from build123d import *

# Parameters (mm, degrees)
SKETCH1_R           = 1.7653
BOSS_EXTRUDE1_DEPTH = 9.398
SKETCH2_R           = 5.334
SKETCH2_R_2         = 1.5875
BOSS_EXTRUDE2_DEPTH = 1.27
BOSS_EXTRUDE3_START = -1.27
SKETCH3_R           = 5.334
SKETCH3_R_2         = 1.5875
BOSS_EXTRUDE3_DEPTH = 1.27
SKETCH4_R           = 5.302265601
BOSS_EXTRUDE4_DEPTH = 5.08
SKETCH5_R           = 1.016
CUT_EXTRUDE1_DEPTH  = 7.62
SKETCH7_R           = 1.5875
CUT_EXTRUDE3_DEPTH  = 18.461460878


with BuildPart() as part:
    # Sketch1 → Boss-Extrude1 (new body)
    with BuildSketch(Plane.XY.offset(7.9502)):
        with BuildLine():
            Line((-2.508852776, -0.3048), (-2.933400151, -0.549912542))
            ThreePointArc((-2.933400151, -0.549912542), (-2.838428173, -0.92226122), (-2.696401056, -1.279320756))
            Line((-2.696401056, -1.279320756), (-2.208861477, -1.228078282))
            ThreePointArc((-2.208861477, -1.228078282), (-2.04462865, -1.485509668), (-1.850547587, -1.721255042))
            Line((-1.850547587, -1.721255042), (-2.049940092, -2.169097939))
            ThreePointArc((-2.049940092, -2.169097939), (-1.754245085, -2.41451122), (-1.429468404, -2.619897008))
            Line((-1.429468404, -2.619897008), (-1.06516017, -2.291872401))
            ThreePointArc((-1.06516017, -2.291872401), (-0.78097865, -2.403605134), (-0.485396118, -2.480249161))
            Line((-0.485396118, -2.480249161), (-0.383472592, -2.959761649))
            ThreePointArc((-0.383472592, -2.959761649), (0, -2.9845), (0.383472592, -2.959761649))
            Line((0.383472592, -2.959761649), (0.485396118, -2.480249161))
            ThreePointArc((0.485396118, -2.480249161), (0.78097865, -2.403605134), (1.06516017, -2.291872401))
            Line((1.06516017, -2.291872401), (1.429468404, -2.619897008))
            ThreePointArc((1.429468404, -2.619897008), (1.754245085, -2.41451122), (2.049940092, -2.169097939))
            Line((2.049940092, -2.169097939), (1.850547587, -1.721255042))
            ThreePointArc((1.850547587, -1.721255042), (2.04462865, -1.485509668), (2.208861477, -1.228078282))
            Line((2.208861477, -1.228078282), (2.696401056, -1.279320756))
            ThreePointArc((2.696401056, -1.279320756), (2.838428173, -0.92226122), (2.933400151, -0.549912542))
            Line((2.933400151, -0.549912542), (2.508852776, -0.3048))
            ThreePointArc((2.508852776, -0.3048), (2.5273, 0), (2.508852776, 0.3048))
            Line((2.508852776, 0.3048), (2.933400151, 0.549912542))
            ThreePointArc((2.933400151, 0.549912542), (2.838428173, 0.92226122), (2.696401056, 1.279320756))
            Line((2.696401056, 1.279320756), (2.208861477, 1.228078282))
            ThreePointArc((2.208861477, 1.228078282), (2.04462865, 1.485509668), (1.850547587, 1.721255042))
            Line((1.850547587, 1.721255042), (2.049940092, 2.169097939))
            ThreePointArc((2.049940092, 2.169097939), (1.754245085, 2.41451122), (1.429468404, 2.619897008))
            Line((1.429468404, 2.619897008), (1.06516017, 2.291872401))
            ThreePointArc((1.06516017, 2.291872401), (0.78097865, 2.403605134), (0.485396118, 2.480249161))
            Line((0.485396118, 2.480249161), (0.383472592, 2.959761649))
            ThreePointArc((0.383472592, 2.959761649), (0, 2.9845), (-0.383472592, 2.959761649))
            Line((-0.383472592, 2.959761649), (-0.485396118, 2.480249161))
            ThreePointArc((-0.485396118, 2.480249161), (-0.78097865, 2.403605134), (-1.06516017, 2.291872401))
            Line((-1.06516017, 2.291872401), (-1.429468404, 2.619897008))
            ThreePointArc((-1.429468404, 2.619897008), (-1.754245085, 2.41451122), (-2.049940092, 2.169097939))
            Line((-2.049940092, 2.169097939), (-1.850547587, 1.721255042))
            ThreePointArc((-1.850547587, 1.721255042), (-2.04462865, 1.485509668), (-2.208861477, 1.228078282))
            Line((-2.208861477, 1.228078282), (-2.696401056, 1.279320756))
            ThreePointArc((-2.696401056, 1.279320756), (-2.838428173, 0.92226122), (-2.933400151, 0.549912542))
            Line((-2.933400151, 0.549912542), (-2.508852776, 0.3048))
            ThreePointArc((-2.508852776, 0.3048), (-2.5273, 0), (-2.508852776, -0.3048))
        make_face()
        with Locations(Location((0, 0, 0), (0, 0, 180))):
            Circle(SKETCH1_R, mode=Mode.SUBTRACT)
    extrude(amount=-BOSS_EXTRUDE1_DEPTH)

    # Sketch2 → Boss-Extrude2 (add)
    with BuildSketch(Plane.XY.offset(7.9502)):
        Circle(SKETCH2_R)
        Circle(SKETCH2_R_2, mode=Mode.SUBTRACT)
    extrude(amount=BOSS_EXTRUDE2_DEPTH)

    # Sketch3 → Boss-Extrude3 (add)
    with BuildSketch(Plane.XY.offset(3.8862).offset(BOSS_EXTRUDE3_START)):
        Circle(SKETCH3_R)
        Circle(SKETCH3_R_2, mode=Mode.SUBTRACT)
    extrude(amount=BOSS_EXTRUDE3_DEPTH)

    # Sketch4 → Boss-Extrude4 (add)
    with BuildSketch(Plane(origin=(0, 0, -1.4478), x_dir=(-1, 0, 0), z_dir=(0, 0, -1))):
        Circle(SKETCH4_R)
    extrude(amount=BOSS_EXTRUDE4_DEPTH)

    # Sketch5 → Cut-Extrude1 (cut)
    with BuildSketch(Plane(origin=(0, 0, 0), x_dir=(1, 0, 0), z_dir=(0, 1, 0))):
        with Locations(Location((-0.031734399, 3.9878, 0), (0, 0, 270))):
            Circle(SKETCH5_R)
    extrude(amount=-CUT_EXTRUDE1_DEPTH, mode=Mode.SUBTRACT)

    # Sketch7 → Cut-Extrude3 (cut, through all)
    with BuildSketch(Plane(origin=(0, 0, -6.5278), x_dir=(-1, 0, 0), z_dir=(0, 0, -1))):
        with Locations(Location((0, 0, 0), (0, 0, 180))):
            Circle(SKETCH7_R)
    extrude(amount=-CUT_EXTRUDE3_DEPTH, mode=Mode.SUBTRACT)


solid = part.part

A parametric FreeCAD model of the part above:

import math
import FreeCAD as App
import Part
import Sketcher
from FreeCAD import Vector
Q = App.Units.Quantity

doc = App.newDocument("Part")
body = doc.addObject("PartDesign::Body", "Body")

# Sketch on XY plane
sketch1 = body.newObject("Sketcher::SketchObject", "Sketch")
sketch1.AttachmentSupport = (doc.getObject("XY_Plane"), [""])
sketch1.MapMode = "FlatFace"
sketch1.AttachmentOffset = App.Placement(Vector(0, 0, 0.313 * 25.4), App.Rotation())
sketch1.addGeometry([
    Part.LineSegment(Vector(-2.508853, -0.3048, 0), Vector(-2.9334, -0.549913, 0)),  # 0
    Part.ArcOfCircle(Part.Circle(Vector(0, 0, 0), Vector(0, 0, 1), 2.9845), math.radians(-169.382231), math.radians(-154.617769)),  # 1
    Part.LineSegment(Vector(-2.696401, -1.279321, 0), Vector(-2.208861, -1.228078, 0)),  # 2
    Part.ArcOfCircle(Part.Circle(Vector(0, 0, 0), Vector(0, 0, 1), 2.5273), math.radians(-150.926905), math.radians(-137.073095)),  # 3
    Part.LineSegment(Vector(-1.850548, -1.721255, 0), Vector(-2.04994, -2.169098, 0)),  # 4
    Part.ArcOfCircle(Part.Circle(Vector(0, 0, 0), Vector(0, 0, 1), 2.9845), math.radians(-133.382231), math.radians(-118.617769)),  # 5
    Part.LineSegment(Vector(-1.429468, -2.619897, 0), Vector(-1.06516, -2.291872, 0)),  # 6
    Part.ArcOfCircle(Part.Circle(Vector(0, 0, 0), Vector(0, 0, 1), 2.5273), math.radians(-114.926906), math.radians(-101.073094)),  # 7
    Part.LineSegment(Vector(-0.485396, -2.480249, 0), Vector(-0.383473, -2.959762, 0)),  # 8
    Part.ArcOfCircle(Part.Circle(Vector(0, 0, 0), Vector(0, 0, 1), 2.9845), math.radians(-97.382231), math.radians(-82.617769)),  # 9
    Part.LineSegment(Vector(0.383473, -2.959762, 0), Vector(0.485396, -2.480249, 0)),  # 10
    Part.ArcOfCircle(Part.Circle(Vector(0, 0, 0), Vector(0, 0, 1), 2.5273), math.radians(-78.926906), math.radians(-65.073094)),  # 11
    Part.LineSegment(Vector(1.06516, -2.291872, 0), Vector(1.429468, -2.619897, 0)),  # 12
    Part.ArcOfCircle(Part.Circle(Vector(0, 0, 0), Vector(0, 0, 1), 2.9845), math.radians(-61.382231), math.radians(-46.617769)),  # 13
    Part.LineSegment(Vector(2.04994, -2.169098, 0), Vector(1.850548, -1.721255, 0)),  # 14
    Part.ArcOfCircle(Part.Circle(Vector(0, 0, 0), Vector(0, 0, 1), 2.5273), math.radians(-42.926905), math.radians(-29.073095)),  # 15
    Part.LineSegment(Vector(2.208861, -1.228078, 0), Vector(2.696401, -1.279321, 0)),  # 16
    Part.ArcOfCircle(Part.Circle(Vector(0, 0, 0), Vector(0, 0, 1), 2.9845), math.radians(-25.382231), math.radians(-10.617769)),  # 17
    Part.LineSegment(Vector(2.9334, -0.549913, 0), Vector(2.508853, -0.3048, 0)),  # 18
    Part.ArcOfCircle(Part.Circle(Vector(0, 0, 0), Vector(0, 0, 1), 2.5273), math.radians(-6.926905), math.radians(6.926905)),  # 19
    Part.LineSegment(Vector(2.508853, 0.3048, 0), Vector(2.9334, 0.549913, 0)),  # 20
    Part.ArcOfCircle(Part.Circle(Vector(0, 0, 0), Vector(0, 0, 1), 2.9845), math.radians(10.617769), math.radians(25.382231)),  # 21
    Part.LineSegment(Vector(2.696401, 1.279321, 0), Vector(2.208861, 1.228078, 0)),  # 22
    Part.ArcOfCircle(Part.Circle(Vector(0, 0, 0), Vector(0, 0, 1), 2.5273), math.radians(29.073095), math.radians(42.926905)),  # 23
    Part.LineSegment(Vector(1.850548, 1.721255, 0), Vector(2.04994, 2.169098, 0)),  # 24
    Part.ArcOfCircle(Part.Circle(Vector(0, 0, 0), Vector(0, 0, 1), 2.9845), math.radians(46.617769), math.radians(61.382231)),  # 25
    Part.LineSegment(Vector(1.429468, 2.619897, 0), Vector(1.06516, 2.291872, 0)),  # 26
    Part.ArcOfCircle(Part.Circle(Vector(0, 0, 0), Vector(0, 0, 1), 2.5273), math.radians(65.073094), math.radians(78.926906)),  # 27
    Part.LineSegment(Vector(0.485396, 2.480249, 0), Vector(0.383473, 2.959762, 0)),  # 28
    Part.ArcOfCircle(Part.Circle(Vector(0, 0, 0), Vector(0, 0, 1), 2.9845), math.radians(82.617769), math.radians(97.382231)),  # 29
    Part.LineSegment(Vector(-0.383473, 2.959762, 0), Vector(-0.485396, 2.480249, 0)),  # 30
    Part.ArcOfCircle(Part.Circle(Vector(0, 0, 0), Vector(0, 0, 1), 2.5273), math.radians(101.073094), math.radians(114.926906)),  # 31
    Part.LineSegment(Vector(-1.06516, 2.291872, 0), Vector(-1.429468, 2.619897, 0)),  # 32
    Part.ArcOfCircle(Part.Circle(Vector(0, 0, 0), Vector(0, 0, 1), 2.9845), math.radians(118.617769), math.radians(133.382231)),  # 33
    Part.LineSegment(Vector(-2.04994, 2.169098, 0), Vector(-1.850548, 1.721255, 0)),  # 34
    Part.ArcOfCircle(Part.Circle(Vector(0, 0, 0), Vector(0, 0, 1), 2.5273), math.radians(137.073095), math.radians(150.926905)),  # 35
    Part.LineSegment(Vector(-2.208861, 1.228078, 0), Vector(-2.696401, 1.279321, 0)),  # 36
    Part.ArcOfCircle(Part.Circle(Vector(0, 0, 0), Vector(0, 0, 1), 2.9845), math.radians(154.617769), math.radians(169.382231)),  # 37
    Part.LineSegment(Vector(-2.9334, 0.549913, 0), Vector(-2.508853, 0.3048, 0)),  # 38
    Part.ArcOfCircle(Part.Circle(Vector(0, 0, 0), Vector(0, 0, 1), 2.5273), math.radians(173.073095), math.radians(186.926905)),  # 39
    Part.Circle(Vector(0, 0, 0), Vector(0, 0, 1), 1.7653),  # 40
], False)
sketch1.addConstraint([
    Sketcher.Constraint("Coincident", 0, 2, 1, 1),
    Sketcher.Constraint("Coincident", 1, 2, 2, 1),
    Sketcher.Constraint("Coincident", 2, 2, 3, 1),
    Sketcher.Constraint("Coincident", 3, 2, 4, 1),
    Sketcher.Constraint("Coincident", 4, 2, 5, 1),
    Sketcher.Constraint("Coincident", 5, 2, 6, 1),
    Sketcher.Constraint("Coincident", 6, 2, 7, 1),
    Sketcher.Constraint("Coincident", 7, 2, 8, 1),
    Sketcher.Constraint("Coincident", 8, 2, 9, 1),
    Sketcher.Constraint("Coincident", 9, 2, 10, 1),
    Sketcher.Constraint("Coincident", 10, 2, 11, 1),
    Sketcher.Constraint("Coincident", 11, 2, 12, 1),
    Sketcher.Constraint("Coincident", 12, 2, 13, 1),
    Sketcher.Constraint("Coincident", 13, 2, 14, 1),
    Sketcher.Constraint("Coincident", 14, 2, 15, 1),
    Sketcher.Constraint("Coincident", 15, 2, 16, 1),
    Sketcher.Constraint("Coincident", 16, 2, 17, 1),
    Sketcher.Constraint("Coincident", 17, 2, 18, 1),
    Sketcher.Constraint("Coincident", 18, 2, 19, 1),
    Sketcher.Constraint("Coincident", 19, 2, 20, 1),
    Sketcher.Constraint("Coincident", 20, 2, 21, 1),
    Sketcher.Constraint("Coincident", 21, 2, 22, 1),
    Sketcher.Constraint("Coincident", 22, 2, 23, 1),
    Sketcher.Constraint("Coincident", 23, 2, 24, 1),
    Sketcher.Constraint("Coincident", 24, 2, 25, 1),
    Sketcher.Constraint("Coincident", 25, 2, 26, 1),
    Sketcher.Constraint("Coincident", 26, 2, 27, 1),
    Sketcher.Constraint("Coincident", 27, 2, 28, 1),
    Sketcher.Constraint("Coincident", 28, 2, 29, 1),
    Sketcher.Constraint("Coincident", 29, 2, 30, 1),
    Sketcher.Constraint("Coincident", 30, 2, 31, 1),
    Sketcher.Constraint("Coincident", 31, 2, 32, 1),
    Sketcher.Constraint("Coincident", 32, 2, 33, 1),
    Sketcher.Constraint("Coincident", 33, 2, 34, 1),
    Sketcher.Constraint("Coincident", 34, 2, 35, 1),
    Sketcher.Constraint("Coincident", 35, 2, 36, 1),
    Sketcher.Constraint("Coincident", 36, 2, 37, 1),
    Sketcher.Constraint("Coincident", 37, 2, 38, 1),
    Sketcher.Constraint("Coincident", 38, 2, 39, 1),
    Sketcher.Constraint("Coincident", 39, 2, 0, 1),
    Sketcher.Constraint("Coincident", 1, 3, -1, 1),
    Sketcher.Constraint("Coincident", 3, 3, -1, 1),
    Sketcher.Constraint("Coincident", 5, 3, -1, 1),
    Sketcher.Constraint("Coincident", 7, 3, -1, 1),
    Sketcher.Constraint("Coincident", 9, 3, -1, 1),
    Sketcher.Constraint("Coincident", 11, 3, -1, 1),
    Sketcher.Constraint("Coincident", 13, 3, -1, 1),
    Sketcher.Constraint("Coincident", 15, 3, -1, 1),
    Sketcher.Constraint("Coincident", 17, 3, -1, 1),
    Sketcher.Constraint("Coincident", 19, 3, -1, 1),
    Sketcher.Constraint("Coincident", 21, 3, -1, 1),
    Sketcher.Constraint("Coincident", 23, 3, -1, 1),
    Sketcher.Constraint("Coincident", 25, 3, -1, 1),
    Sketcher.Constraint("Coincident", 27, 3, -1, 1),
    Sketcher.Constraint("Coincident", 29, 3, -1, 1),
    Sketcher.Constraint("Coincident", 31, 3, -1, 1),
    Sketcher.Constraint("Coincident", 33, 3, -1, 1),
    Sketcher.Constraint("Coincident", 35, 3, -1, 1),
    Sketcher.Constraint("Coincident", 37, 3, -1, 1),
    Sketcher.Constraint("Coincident", 39, 3, -1, 1),
    Sketcher.Constraint("Coincident", 40, 3, -1, 1),
    Sketcher.Constraint("Equal", 1, 5),
    Sketcher.Constraint("Equal", 3, 7),
    Sketcher.Constraint("Equal", 5, 9),
    Sketcher.Constraint("Equal", 7, 11),
    Sketcher.Constraint("Equal", 9, 13),
    Sketcher.Constraint("Equal", 11, 15),
    Sketcher.Constraint("Equal", 13, 17),
    Sketcher.Constraint("Equal", 15, 19),
    Sketcher.Constraint("Equal", 17, 21),
    Sketcher.Constraint("Equal", 19, 23),
    Sketcher.Constraint("Equal", 21, 25),
    Sketcher.Constraint("Equal", 23, 27),
    Sketcher.Constraint("Equal", 25, 29),
    Sketcher.Constraint("Equal", 27, 31),
    Sketcher.Constraint("Equal", 29, 33),
    Sketcher.Constraint("Equal", 31, 35),
    Sketcher.Constraint("Equal", 33, 37),
    Sketcher.Constraint("Equal", 35, 39),
    Sketcher.Constraint("Parallel", 0, 20),
    Sketcher.Constraint("Parallel", 2, 22),
    Sketcher.Constraint("Parallel", 4, 24),
    Sketcher.Constraint("Parallel", 6, 26),
    Sketcher.Constraint("Parallel", 8, 28),
    Sketcher.Constraint("Parallel", 10, 30),
    Sketcher.Constraint("Parallel", 12, 32),
    Sketcher.Constraint("Parallel", 14, 34),
    Sketcher.Constraint("Parallel", 16, 36),
    Sketcher.Constraint("Parallel", 18, 38),
    Sketcher.Constraint("Horizontal", 8, 2, 9, 2),
    Sketcher.Constraint("Horizontal", 7, 2, 10, 2),
    Sketcher.Constraint("Horizontal", 6, 2, 11, 2),
    Sketcher.Constraint("Horizontal", 5, 2, 12, 2),
    Sketcher.Constraint("Horizontal", 4, 2, 13, 2),
    Sketcher.Constraint("Horizontal", 3, 2, 14, 2),
    Sketcher.Constraint("Horizontal", 2, 2, 15, 2),
    Sketcher.Constraint("Horizontal", 1, 2, 16, 2),
    Sketcher.Constraint("Horizontal", 0, 2, 17, 2),
    Sketcher.Constraint("Horizontal", 28, 2, 29, 2),
    Sketcher.Constraint("Horizontal", 26, 2, 31, 2),
    Sketcher.Constraint("Horizontal", 24, 2, 33, 2),
    Sketcher.Constraint("Horizontal", 22, 2, 35, 2),
    Sketcher.Constraint("Horizontal", 20, 2, 37, 2),
    Sketcher.Constraint("Horizontal", 19, 2, 38, 2),
    Sketcher.Constraint("Vertical", 18, 2, 19, 2),
    Sketcher.Constraint("Vertical", 16, 2, 21, 2),
    Sketcher.Constraint("Vertical", 14, 2, 23, 2),
    Sketcher.Constraint("Vertical", 12, 2, 25, 2),
    Sketcher.Constraint("Vertical", 10, 2, 27, 2),
    Sketcher.Constraint("Equal", 0, 2),
    Sketcher.Constraint("Equal", 2, 4),
    Sketcher.Constraint("Equal", 4, 6),
    Sketcher.Constraint("Equal", 6, 8),
    Sketcher.Constraint("Diameter", 40, Q("0.139 in")),
    Sketcher.Constraint("Angle", 0, Q("-150 deg")),
    Sketcher.Constraint("Angle", 2, Q("6 deg")),
    Sketcher.Constraint("Angle", 4, Q("-114 deg")),
    Sketcher.Constraint("Angle", 6, Q("42 deg")),
    Sketcher.Constraint("Angle", 8, Q("-78 deg")),
    Sketcher.Constraint("Radius", 1, Q("0.1175 in")),
    Sketcher.Constraint("Radius", 3, Q("0.0995 in")),
    Sketcher.Constraint("DistanceY", 18, 2, -1, 1, Q("0.012 in")),
])
pad1 = body.newObject("PartDesign::Pad", "Pad")
pad1.Profile = sketch1
pad1.Length = Q("0.37 in")
pad1.Reversed = True

# Sketch on XY plane
sketch2 = body.newObject("Sketcher::SketchObject", "Sketch001")
sketch2.AttachmentSupport = (doc.getObject("XY_Plane"), [""])
sketch2.MapMode = "FlatFace"
sketch2.AttachmentOffset = App.Placement(Vector(0, 0, 0.313 * 25.4), App.Rotation())
sketch2.addGeometry([
    Part.Circle(Vector(0, 0, 0), Vector(0, 0, 1), 5.334),
    Part.Circle(Vector(0, 0, 0), Vector(0, 0, 1), 1.5875),
], False)
sketch2.addConstraint([
    Sketcher.Constraint("Coincident", 0, 3, -1, 1),
    Sketcher.Constraint("Coincident", 1, 3, -1, 1),
    Sketcher.Constraint("Diameter", 0, Q("0.42 in")),
    Sketcher.Constraint("Diameter", 1, Q("0.125 in")),
])
pad2 = body.newObject("PartDesign::Pad", "Pad001")
pad2.Profile = sketch2
pad2.Length = Q("0.05 in")

# Sketch on XY plane
sketch3 = body.newObject("Sketcher::SketchObject", "Sketch002")
sketch3.AttachmentSupport = (doc.getObject("XY_Plane"), [""])
sketch3.MapMode = "FlatFace"
sketch3.AttachmentOffset = App.Placement(Vector(0, 0, 0.103 * 25.4), App.Rotation())
sketch3.addGeometry([
    Part.Circle(Vector(0, 0, 0), Vector(0, 0, 1), 5.334),
    Part.Circle(Vector(0, 0, 0), Vector(0, 0, 1), 1.5875),
], False)
sketch3.addConstraint([
    Sketcher.Constraint("Coincident", 0, 3, -1, 1),
    Sketcher.Constraint("Coincident", 1, 3, -1, 1),
    Sketcher.Constraint("Diameter", 0, Q("0.42 in")),
    Sketcher.Constraint("Diameter", 1, Q("0.125 in")),
])
pad3 = body.newObject("PartDesign::Pad", "Pad002")
pad3.Profile = sketch3
pad3.Length = Q("0.05 in")

# Sketch on XY plane
sketch4 = body.newObject("Sketcher::SketchObject", "Sketch003")
sketch4.AttachmentSupport = (doc.getObject("XY_Plane"), [""])
sketch4.MapMode = "FlatFace"
sketch4.AttachmentOffset = App.Placement(Vector(0, 0, -0.057 * 25.4), App.Rotation())
sketch4.addGeometry(Part.Circle(Vector(0, 0, 0), Vector(0, 0, 1), 5.302266), False)
sketch4.addConstraint([
    Sketcher.Constraint("Coincident", 0, 3, -1, 1),
    Sketcher.Constraint("Diameter", 0, 10.604531),
])
pad4 = body.newObject("PartDesign::Pad", "Pad003")
pad4.Profile = sketch4
pad4.Length = Q("0.2 in")
pad4.Reversed = True

# Sketch on XZ plane
sketch5 = body.newObject("Sketcher::SketchObject", "Sketch004")
sketch5.AttachmentSupport = (doc.getObject("XZ_Plane"), [""])
sketch5.MapMode = "FlatFace"
sketch5.addGeometry(Part.Circle(Vector(-0.031734, -3.9878, 0), Vector(0, 0, 1), 1.016), False)
sketch5.addConstraint([
    Sketcher.Constraint("Diameter", 0, Q("0.08 in")),
    Sketcher.Constraint("DistanceY", 0, 3, -1, 1, Q("0.157 in")),
    Sketcher.Constraint("DistanceX", 0, 3, -1, 1, 0.031734),
])
pocket1 = body.newObject("PartDesign::Pocket", "Pocket")
pocket1.Profile = sketch5
pocket1.Length = Q("0.3 in")
pocket1.Reversed = True

# Sketch on XY plane
sketch6 = body.newObject("Sketcher::SketchObject", "Sketch005")
sketch6.AttachmentSupport = (doc.getObject("XY_Plane"), [""])
sketch6.MapMode = "FlatFace"
sketch6.AttachmentOffset = App.Placement(Vector(0, 0, -0.257 * 25.4), App.Rotation())
sketch6.addGeometry(Part.Circle(Vector(0, 0, 0), Vector(0, 0, 1), 1.5875), False)
sketch6.addConstraint([
    Sketcher.Constraint("Coincident", 0, 3, -1, 1),
    Sketcher.Constraint("Diameter", 0, Q("0.125 in")),
])
pocket2 = body.newObject("PartDesign::Pocket", "Pocket001")
pocket2.Profile = sketch6
pocket2.Type = "ThroughAll"
pocket2.Reversed = True

doc.recompute()
